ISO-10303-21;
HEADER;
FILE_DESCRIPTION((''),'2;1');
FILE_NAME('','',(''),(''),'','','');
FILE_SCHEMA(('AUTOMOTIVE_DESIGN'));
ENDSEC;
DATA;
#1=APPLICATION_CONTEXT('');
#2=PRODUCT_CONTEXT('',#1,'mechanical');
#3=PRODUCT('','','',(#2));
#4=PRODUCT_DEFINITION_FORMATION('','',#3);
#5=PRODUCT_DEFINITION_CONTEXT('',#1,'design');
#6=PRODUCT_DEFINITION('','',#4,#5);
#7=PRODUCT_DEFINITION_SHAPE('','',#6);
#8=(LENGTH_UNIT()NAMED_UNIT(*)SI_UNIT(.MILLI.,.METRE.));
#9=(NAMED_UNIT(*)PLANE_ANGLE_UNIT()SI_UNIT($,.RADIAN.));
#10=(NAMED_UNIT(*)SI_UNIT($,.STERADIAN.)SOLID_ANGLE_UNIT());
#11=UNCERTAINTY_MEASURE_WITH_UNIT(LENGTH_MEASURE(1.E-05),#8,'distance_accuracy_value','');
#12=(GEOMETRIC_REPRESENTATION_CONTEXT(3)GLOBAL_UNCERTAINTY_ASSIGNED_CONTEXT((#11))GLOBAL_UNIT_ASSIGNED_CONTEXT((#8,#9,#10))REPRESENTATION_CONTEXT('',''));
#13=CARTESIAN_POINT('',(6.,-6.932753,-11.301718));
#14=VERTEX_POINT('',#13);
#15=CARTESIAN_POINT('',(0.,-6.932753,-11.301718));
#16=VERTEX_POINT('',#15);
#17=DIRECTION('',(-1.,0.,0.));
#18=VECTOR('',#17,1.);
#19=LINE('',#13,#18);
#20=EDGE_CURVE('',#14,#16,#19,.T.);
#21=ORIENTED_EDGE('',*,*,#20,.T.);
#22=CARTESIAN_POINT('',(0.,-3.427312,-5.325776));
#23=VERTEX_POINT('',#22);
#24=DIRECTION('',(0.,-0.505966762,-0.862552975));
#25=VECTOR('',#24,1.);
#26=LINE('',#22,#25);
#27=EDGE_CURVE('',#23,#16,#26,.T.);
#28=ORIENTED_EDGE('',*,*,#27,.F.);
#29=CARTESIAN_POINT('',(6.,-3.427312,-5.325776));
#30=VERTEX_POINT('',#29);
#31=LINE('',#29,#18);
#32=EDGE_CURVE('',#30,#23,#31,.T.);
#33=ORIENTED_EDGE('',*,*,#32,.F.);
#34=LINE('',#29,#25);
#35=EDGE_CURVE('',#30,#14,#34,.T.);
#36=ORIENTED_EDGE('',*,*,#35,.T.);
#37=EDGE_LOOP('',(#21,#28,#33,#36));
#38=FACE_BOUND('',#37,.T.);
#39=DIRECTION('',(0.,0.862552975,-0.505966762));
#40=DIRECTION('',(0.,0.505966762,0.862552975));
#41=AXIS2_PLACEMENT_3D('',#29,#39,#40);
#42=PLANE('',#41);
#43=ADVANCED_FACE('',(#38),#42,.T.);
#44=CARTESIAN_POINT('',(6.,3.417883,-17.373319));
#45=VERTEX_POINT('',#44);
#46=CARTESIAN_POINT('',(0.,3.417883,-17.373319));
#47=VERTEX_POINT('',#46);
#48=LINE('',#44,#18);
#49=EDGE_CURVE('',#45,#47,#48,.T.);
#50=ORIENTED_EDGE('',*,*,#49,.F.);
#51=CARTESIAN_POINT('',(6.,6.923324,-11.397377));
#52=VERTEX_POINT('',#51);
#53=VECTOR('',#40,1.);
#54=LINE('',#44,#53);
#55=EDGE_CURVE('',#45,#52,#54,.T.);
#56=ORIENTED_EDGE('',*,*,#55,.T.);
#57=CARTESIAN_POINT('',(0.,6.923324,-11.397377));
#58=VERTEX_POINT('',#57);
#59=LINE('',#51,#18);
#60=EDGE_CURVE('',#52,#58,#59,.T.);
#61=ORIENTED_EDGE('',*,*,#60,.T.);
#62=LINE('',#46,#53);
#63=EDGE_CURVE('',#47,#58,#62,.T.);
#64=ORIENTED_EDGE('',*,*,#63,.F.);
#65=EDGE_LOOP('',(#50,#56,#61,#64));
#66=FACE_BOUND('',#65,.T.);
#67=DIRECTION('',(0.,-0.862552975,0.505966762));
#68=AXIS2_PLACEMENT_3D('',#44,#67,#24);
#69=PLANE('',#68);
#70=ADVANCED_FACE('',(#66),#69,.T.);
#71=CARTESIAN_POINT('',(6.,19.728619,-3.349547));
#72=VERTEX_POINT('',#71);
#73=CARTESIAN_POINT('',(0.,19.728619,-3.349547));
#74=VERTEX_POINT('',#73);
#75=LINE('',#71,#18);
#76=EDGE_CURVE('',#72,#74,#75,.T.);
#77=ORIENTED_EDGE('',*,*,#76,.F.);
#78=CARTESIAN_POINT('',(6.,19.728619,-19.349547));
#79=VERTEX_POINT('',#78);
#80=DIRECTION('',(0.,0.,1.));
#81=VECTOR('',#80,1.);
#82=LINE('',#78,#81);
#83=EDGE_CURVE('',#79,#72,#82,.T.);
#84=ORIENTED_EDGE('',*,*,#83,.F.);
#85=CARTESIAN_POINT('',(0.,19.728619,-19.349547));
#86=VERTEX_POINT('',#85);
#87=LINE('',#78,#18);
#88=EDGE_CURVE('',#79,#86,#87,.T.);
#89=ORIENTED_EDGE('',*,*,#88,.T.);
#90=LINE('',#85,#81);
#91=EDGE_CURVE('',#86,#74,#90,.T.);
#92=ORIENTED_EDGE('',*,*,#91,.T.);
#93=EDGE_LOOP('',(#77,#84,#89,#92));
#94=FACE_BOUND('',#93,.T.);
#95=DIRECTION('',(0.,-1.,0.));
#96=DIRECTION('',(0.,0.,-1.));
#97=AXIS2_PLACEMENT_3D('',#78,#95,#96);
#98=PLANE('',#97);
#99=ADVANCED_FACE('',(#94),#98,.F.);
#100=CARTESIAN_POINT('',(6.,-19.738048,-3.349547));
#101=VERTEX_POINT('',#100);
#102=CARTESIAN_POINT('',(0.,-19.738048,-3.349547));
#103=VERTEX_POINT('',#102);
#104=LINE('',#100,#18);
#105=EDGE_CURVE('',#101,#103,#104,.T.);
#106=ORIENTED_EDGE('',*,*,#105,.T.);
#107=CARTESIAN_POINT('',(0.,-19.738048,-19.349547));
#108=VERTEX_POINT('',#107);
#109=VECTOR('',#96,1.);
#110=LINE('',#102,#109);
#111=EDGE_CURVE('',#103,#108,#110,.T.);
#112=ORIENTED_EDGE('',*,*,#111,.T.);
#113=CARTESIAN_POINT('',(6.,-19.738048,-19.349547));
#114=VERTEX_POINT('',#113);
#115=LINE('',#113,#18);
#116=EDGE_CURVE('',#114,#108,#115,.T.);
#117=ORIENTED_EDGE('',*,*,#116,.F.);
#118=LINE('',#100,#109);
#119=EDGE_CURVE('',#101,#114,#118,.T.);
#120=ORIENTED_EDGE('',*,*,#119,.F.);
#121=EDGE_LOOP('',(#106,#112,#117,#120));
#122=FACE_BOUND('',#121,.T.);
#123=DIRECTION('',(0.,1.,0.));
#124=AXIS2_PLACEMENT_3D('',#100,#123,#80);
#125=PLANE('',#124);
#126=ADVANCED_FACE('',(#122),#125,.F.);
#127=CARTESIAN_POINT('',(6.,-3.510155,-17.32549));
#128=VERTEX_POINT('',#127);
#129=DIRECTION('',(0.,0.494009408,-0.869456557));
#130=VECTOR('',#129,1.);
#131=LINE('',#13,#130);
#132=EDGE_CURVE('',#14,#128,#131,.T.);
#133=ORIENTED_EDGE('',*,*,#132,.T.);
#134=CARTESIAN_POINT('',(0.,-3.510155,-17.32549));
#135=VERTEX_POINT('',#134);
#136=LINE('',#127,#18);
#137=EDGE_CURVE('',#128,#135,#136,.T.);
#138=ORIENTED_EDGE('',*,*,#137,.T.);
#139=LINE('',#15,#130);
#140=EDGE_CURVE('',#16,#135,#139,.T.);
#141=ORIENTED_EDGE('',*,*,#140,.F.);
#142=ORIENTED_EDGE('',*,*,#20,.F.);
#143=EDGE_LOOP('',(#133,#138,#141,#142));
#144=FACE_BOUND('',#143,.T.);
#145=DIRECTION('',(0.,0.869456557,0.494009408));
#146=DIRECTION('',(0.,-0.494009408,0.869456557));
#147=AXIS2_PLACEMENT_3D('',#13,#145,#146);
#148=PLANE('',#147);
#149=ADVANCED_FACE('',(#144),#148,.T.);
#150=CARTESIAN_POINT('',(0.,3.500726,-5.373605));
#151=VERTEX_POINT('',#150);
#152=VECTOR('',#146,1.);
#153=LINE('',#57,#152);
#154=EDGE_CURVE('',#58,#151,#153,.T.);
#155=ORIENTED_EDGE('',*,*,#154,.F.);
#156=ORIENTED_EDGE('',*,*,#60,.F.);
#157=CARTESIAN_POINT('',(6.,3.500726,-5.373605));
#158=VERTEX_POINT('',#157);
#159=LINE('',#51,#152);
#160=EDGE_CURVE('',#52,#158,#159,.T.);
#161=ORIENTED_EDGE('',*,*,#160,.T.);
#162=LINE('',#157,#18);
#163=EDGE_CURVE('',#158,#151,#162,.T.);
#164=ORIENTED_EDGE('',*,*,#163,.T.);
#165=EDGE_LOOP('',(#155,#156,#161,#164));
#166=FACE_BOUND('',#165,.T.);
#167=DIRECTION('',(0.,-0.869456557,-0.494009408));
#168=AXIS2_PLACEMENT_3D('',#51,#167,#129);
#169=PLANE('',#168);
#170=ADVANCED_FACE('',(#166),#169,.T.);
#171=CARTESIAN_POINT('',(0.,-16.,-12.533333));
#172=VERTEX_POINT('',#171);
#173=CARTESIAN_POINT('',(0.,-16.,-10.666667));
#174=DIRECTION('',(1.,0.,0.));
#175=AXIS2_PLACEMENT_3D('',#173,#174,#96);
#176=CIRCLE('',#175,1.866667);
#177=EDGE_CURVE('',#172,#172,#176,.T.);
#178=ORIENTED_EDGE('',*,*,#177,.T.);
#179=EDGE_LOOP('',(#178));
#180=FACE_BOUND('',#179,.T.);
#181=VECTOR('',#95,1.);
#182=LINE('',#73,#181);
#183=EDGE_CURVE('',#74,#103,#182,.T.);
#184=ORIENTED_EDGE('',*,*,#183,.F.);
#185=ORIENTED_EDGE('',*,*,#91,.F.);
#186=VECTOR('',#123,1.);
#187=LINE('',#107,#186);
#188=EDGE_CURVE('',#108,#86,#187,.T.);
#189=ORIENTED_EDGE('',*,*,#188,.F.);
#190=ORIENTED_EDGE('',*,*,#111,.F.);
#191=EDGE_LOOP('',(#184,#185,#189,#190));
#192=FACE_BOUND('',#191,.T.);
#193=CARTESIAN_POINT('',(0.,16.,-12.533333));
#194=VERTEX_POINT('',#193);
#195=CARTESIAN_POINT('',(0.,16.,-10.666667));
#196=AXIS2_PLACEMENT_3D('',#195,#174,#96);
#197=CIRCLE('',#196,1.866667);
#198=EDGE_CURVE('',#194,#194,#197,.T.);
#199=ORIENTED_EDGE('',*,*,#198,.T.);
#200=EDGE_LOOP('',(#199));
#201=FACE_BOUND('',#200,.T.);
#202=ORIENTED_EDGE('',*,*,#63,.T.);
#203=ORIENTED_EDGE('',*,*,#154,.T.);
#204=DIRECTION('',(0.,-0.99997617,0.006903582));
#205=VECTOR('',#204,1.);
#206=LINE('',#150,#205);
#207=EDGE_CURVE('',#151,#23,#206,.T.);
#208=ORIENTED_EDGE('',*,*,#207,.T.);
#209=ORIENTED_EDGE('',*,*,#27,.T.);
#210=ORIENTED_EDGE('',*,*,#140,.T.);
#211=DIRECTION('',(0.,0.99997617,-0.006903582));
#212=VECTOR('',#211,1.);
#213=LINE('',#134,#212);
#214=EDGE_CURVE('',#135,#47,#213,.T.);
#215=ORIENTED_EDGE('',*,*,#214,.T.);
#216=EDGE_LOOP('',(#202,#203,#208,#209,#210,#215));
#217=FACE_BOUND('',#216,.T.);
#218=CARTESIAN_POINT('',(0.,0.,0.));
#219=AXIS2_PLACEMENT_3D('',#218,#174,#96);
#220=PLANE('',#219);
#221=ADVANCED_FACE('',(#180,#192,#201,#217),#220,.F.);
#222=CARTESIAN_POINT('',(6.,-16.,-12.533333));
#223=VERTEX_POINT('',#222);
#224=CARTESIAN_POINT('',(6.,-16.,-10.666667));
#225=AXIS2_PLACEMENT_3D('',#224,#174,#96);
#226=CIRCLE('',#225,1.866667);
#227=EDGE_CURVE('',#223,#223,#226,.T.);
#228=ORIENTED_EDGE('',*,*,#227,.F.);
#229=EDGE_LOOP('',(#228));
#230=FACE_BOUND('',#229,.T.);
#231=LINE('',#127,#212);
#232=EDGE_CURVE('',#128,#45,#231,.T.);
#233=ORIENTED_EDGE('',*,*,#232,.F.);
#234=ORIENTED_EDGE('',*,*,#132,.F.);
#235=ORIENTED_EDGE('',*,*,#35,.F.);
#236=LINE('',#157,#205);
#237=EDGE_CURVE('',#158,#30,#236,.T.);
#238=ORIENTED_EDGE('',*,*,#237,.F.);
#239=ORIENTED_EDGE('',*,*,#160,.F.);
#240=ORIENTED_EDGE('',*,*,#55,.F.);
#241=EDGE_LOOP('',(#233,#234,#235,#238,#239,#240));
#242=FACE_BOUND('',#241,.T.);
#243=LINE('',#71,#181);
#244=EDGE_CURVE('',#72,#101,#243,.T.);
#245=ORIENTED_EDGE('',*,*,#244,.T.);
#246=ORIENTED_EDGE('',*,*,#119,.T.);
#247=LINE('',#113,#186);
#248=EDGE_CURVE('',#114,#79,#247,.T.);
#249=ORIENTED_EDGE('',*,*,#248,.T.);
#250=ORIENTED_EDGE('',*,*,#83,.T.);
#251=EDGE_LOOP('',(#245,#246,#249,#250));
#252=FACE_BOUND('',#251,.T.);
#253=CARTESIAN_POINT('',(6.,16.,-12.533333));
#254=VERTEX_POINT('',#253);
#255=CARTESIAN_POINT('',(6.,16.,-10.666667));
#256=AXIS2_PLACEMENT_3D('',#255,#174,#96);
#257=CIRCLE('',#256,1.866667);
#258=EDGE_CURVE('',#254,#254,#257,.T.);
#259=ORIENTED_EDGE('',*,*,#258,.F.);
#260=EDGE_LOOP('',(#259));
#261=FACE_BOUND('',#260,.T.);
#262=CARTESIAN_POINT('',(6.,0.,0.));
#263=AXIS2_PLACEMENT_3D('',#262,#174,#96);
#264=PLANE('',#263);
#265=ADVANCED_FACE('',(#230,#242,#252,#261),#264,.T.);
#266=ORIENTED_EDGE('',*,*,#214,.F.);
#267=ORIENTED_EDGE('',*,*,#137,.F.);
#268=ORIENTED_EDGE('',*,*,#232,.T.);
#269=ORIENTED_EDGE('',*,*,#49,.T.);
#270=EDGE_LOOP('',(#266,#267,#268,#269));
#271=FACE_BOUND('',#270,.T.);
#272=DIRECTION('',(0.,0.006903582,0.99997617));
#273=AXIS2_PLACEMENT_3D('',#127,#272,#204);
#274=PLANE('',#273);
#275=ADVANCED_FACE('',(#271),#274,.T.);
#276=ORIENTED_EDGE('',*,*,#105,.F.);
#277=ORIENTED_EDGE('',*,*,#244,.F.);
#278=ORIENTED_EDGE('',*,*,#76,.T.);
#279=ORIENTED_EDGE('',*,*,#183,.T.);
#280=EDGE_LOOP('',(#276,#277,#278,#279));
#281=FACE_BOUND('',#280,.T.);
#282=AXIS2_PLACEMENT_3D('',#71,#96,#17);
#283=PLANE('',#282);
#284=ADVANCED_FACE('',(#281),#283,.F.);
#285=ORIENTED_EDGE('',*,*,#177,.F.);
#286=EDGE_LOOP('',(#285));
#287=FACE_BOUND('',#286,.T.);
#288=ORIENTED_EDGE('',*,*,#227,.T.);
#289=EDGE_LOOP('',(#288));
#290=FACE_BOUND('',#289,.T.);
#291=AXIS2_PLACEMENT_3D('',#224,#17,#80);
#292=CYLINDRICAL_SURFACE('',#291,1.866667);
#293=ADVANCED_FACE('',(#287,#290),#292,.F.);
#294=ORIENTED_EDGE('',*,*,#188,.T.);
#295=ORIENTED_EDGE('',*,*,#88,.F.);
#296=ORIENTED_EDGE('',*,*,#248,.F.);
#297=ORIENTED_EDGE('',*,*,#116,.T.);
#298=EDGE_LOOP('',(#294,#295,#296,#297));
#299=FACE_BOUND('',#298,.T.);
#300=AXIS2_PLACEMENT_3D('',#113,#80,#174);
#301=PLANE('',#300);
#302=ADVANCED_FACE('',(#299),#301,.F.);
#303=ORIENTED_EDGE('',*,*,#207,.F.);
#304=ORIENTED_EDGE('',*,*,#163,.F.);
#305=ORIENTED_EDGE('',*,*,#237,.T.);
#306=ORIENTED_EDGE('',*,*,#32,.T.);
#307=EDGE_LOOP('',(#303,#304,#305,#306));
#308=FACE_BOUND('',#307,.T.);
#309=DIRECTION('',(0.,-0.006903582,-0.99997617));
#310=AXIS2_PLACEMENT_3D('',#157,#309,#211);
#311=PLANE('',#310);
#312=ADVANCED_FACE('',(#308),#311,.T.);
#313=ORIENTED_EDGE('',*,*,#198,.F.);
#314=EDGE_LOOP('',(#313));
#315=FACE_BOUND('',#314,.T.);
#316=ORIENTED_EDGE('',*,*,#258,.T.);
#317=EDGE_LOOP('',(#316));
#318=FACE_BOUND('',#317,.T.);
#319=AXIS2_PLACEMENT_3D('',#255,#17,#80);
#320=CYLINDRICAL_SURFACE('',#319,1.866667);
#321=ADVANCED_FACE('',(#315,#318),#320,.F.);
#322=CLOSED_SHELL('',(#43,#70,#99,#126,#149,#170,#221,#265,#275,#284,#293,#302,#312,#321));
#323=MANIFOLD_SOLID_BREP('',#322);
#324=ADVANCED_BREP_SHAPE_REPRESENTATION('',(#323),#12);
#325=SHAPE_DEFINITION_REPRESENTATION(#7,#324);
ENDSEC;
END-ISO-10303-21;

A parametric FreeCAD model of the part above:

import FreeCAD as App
import Part
import Sketcher

V = App.Vector

doc = App.newDocument("Part")
params = doc.addObject("Spreadsheet::Sheet", "Params")
for row, (alias, value) in enumerate([
    ("sketch1_height", "16 mm"),
    ("pad1_length", "6 mm"),
], start=1):
    params.set(f"A{row}", alias)
    params.set(f"B{row}", "=" + value)
    params.setAlias(f"B{row}", alias)

body = doc.addObject("PartDesign::Body", "Body")

# Sketch on YZ plane
sketch1 = doc.addObject("Sketcher::SketchObject", "Sketch")
body.addObject(sketch1)
sketch1.AttachmentSupport = (doc.YZ_Plane, [""])
sketch1.MapMode = "FlatFace"
sketch1.addGeometry(Part.LineSegment(V(19.7, -19.3, 0), V(19.7, -3.3, 0)), False)
sketch1.addGeometry(Part.LineSegment(V(19.7, -3.3, 0), V(-19.7, -3.3, 0)), False)
sketch1.addGeometry(Part.LineSegment(V(-19.7, -3.3, 0), V(-19.7, -19.3, 0)), False)
sketch1.addGeometry(Part.LineSegment(V(-19.7, -19.3, 0), V(19.7, -19.3, 0)), False)
sketch1.addGeometry(Part.Circle(V(16, -10.7, 0), V(0, 0, 1), 1.9), False)
sketch1.addGeometry(Part.Circle(V(-16, -10.7, 0), V(0, 0, 1), 1.9), False)
sketch1.addGeometry(Part.LineSegment(V(6.9, -11.4, 0), V(3.4, -17.4, 0)), False)
sketch1.addGeometry(Part.LineSegment(V(3.4, -17.4, 0), V(-3.5, -17.3, 0)), False)
sketch1.addGeometry(Part.LineSegment(V(-3.5, -17.3, 0), V(-6.9, -11.3, 0)), False)
sketch1.addGeometry(Part.LineSegment(V(-6.9, -11.3, 0), V(-3.4, -5.3, 0)), False)
sketch1.addGeometry(Part.LineSegment(V(-3.4, -5.3, 0), V(3.5, -5.4, 0)), False)
sketch1.addGeometry(Part.LineSegment(V(3.5, -5.4, 0), V(6.9, -11.4, 0)), False)
sketch1.addConstraint(Sketcher.Constraint("Coincident", 0, 2, 1, 1))
sketch1.addConstraint(Sketcher.Constraint("Coincident", 1, 2, 2, 1))
sketch1.addConstraint(Sketcher.Constraint("Coincident", 2, 2, 3, 1))
sketch1.addConstraint(Sketcher.Constraint("Coincident", 3, 2, 0, 1))
sketch1.addConstraint(Sketcher.Constraint("Coincident", 6, 2, 7, 1))
sketch1.addConstraint(Sketcher.Constraint("Coincident", 7, 2, 8, 1))
sketch1.addConstraint(Sketcher.Constraint("Coincident", 8, 2, 9, 1))
sketch1.addConstraint(Sketcher.Constraint("Coincident", 9, 2, 10, 1))
sketch1.addConstraint(Sketcher.Constraint("Coincident", 10, 2, 11, 1))
sketch1.addConstraint(Sketcher.Constraint("Coincident", 11, 2, 6, 1))
sketch1.addConstraint(Sketcher.Constraint("Vertical", 0))
sketch1.addConstraint(Sketcher.Constraint("Horizontal", 1))
sketch1.addConstraint(Sketcher.Constraint("Vertical", 2))
sketch1.addConstraint(Sketcher.Constraint("Horizontal", 3))
sketch1.addConstraint(Sketcher.Constraint("Equal", 4, 5))
sketch1.addConstraint(Sketcher.Constraint("Symmetric", 4, 3, 5, 3, -2))
sketch1.addConstraint(Sketcher.Constraint("Parallel", 6, 9))
sketch1.addConstraint(Sketcher.Constraint("Parallel", 7, 10))
sketch1.addConstraint(Sketcher.Constraint("Parallel", 8, 11))
sketch1.addConstraint(Sketcher.Constraint("Equal", 6, 7))
sketch1.addConstraint(Sketcher.Constraint("Equal", 7, 8))
sketch1.addConstraint(Sketcher.Constraint("Equal", 8, 9))
sketch1.addConstraint(Sketcher.Constraint("DistanceY", 0, 1, 0, 2, 16.0))
sketch1.addConstraint(Sketcher.Constraint("DistanceX", -1, 1, 4, 3, 16.0))
sketch1.addConstraint(Sketcher.Constraint("Diameter", 4, 3.733333))
sketch1.addConstraint(Sketcher.Constraint("DistanceY", 6, 2, 8, 2, 6.071601))
sketch1.addConstraint(Sketcher.Constraint("DistanceX", 1, 2, 1, 1, 39.466667))
sketch1.addConstraint(Sketcher.Constraint("DistanceX", -1, 1, 0, 2, 19.728619))
sketch1.addConstraint(Sketcher.Constraint("DistanceY", 6, 2, -1, 1, 17.373319))
sketch1.addConstraint(Sketcher.Constraint("DistanceY", 7, 2, -1, 1, 17.32549))
sketch1.addConstraint(Sketcher.Constraint("DistanceY", 4, 3, 0, 2, 7.317119))
sketch1.addConstraint(Sketcher.Constraint("DistanceY", 3, 2, 6, 2, 1.976228))
sketch1.addConstraint(Sketcher.Constraint("DistanceX", 2, 2, 6, 2, 23.155931))
sketch1.addConstraint(Sketcher.Constraint("DistanceX", 7, 2, 6, 2, 6.928038))
sketch1.addConstraint(Sketcher.Constraint("DistanceX", 8, 2, 9, 2, 3.505441))
sketch1.setExpression("Constraints[22]", "Params.sketch1_height")
pad1 = doc.addObject("PartDesign::Pad", "Pad")
body.addObject(pad1)
pad1.Profile = sketch1
pad1.setExpression("Length", "Params.pad1_length")

doc.recompute()
